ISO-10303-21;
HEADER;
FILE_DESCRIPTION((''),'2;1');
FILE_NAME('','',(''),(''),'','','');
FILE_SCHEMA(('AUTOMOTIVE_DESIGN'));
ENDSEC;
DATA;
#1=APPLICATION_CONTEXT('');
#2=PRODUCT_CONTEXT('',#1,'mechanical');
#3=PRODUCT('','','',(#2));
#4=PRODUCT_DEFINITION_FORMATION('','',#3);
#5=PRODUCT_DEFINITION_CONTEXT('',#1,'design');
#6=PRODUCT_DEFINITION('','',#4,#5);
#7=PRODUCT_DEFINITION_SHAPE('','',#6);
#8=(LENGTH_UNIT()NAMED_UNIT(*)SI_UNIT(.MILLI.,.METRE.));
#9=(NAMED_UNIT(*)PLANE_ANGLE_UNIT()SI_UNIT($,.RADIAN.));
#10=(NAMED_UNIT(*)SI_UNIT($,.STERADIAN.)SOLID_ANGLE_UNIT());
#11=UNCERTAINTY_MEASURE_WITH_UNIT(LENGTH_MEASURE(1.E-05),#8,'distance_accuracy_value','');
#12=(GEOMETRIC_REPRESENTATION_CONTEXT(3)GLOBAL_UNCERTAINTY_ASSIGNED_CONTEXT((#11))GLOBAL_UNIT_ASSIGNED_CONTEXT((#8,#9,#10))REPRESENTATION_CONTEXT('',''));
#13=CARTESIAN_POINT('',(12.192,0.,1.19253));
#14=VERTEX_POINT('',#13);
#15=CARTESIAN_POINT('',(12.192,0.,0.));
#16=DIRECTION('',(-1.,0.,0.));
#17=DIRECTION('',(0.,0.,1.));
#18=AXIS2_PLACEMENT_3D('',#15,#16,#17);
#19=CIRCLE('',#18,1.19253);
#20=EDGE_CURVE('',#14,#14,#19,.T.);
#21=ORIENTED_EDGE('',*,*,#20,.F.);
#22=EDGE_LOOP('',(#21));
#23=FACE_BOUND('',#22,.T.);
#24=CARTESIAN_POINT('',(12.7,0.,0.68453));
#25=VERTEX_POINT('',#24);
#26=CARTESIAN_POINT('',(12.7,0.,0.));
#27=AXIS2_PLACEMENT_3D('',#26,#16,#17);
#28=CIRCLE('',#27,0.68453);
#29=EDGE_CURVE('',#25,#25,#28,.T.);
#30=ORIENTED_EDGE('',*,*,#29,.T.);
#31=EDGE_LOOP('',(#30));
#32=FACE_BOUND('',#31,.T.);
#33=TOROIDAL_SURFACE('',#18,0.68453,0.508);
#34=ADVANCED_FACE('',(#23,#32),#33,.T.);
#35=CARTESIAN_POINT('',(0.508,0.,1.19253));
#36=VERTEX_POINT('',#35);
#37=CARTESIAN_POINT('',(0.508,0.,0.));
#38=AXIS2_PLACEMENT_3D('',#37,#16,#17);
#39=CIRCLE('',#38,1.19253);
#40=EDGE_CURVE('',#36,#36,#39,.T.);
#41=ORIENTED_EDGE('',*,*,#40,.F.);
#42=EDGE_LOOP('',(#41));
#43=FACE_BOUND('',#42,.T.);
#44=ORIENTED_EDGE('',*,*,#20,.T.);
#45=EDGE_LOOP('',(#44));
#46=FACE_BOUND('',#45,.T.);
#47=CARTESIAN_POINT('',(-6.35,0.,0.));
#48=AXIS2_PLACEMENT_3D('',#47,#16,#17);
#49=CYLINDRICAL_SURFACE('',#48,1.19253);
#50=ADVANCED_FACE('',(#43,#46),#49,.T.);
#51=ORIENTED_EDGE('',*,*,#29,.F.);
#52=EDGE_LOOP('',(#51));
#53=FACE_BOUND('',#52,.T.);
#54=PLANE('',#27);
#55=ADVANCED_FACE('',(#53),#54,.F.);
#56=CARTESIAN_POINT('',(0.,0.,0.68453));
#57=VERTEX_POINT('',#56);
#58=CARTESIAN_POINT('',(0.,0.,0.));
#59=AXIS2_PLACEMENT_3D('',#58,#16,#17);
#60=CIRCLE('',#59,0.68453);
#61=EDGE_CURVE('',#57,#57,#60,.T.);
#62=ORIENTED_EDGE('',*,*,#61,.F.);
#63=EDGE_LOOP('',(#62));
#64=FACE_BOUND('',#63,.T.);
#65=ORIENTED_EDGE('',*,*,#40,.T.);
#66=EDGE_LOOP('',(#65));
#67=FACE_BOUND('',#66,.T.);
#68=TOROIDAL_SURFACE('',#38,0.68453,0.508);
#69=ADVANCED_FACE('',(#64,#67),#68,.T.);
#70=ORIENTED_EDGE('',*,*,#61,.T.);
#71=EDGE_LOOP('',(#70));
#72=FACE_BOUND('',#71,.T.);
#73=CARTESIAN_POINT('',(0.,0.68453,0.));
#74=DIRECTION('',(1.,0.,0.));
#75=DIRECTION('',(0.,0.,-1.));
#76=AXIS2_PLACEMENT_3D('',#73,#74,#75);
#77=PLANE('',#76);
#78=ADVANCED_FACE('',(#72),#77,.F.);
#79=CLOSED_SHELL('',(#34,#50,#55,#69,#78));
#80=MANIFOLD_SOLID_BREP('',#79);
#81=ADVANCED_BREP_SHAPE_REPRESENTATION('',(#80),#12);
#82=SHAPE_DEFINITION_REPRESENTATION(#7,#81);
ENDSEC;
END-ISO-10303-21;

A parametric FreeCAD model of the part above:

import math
import FreeCAD as App
import Part
import Sketcher
from FreeCAD import Vector
Q = App.Units.Quantity

doc = App.newDocument("Part")
params = doc.addObject("Spreadsheet::Sheet", "Params")
for row, (alias, value) in enumerate([
    ("sketch1_radius", "0.02 in"),
    ("sketch1_width", "0.5 in"),
    ("revolution_angle", "360 deg"),
], start=1):
    params.set(f"A{row}", alias)
    params.set(f"B{row}", "=" + value)
    params.setAlias(f"B{row}", alias)

body = doc.addObject("PartDesign::Body", "Body")

# Sketch on XY plane
sketch1 = body.newObject("Sketcher::SketchObject", "Sketch")
sketch1.AttachmentSupport = (doc.getObject("XY_Plane"), [""])
sketch1.MapMode = "FlatFace"
sketch1.addGeometry([
    Part.LineSegment(Vector(0, 0, 0), Vector(12.7, 0, 0)),  # 0
    Part.LineSegment(Vector(12.7, 0, 0), Vector(12.7, 0.7, 0)),  # 1
    Part.ArcOfCircle(Part.Circle(Vector(12.2, 0.7, 0), Vector(0, 0, 1), 0.5), math.radians(0), math.radians(90)),  # 2
    Part.LineSegment(Vector(12.2, 1.2, 0), Vector(0.5, 1.2, 0)),  # 3
    Part.ArcOfCircle(Part.Circle(Vector(0.5, 0.7, 0), Vector(0, 0, 1), 0.5), math.radians(90), math.radians(180)),  # 4
    Part.LineSegment(Vector(0, 0.7, 0), Vector(0, 0, 0)),  # 5
], False)
sketch1.addConstraint([
    Sketcher.Constraint("Coincident", 0, 2, 1, 1),
    Sketcher.Constraint("Tangent", 1, 2, 2, 1),
    Sketcher.Constraint("Tangent", 2, 2, 3, 1),
    Sketcher.Constraint("Tangent", 3, 2, 4, 1),
    Sketcher.Constraint("Tangent", 4, 2, 5, 1),
    Sketcher.Constraint("Coincident", 5, 2, 0, 1),
    Sketcher.Constraint("Horizontal", 0),
    Sketcher.Constraint("Vertical", 1),
    Sketcher.Constraint("Horizontal", 3),
    Sketcher.Constraint("Vertical", 5),
    Sketcher.Constraint("Coincident", 5, 2, -1, 1),
    Sketcher.Constraint("Equal", 2, 4),
    Sketcher.Constraint("Radius", 2, Q("0.02 in")),
    Sketcher.Constraint("DistanceX", 0, 1, 0, 2, Q("0.5 in")),
    Sketcher.Constraint("DistanceY", 1, 1, 1, 2, 0.68453),
])
sketch1.setExpression("Constraints[12]", "Params.sketch1_radius")
sketch1.setExpression("Constraints[13]", "Params.sketch1_width")
revolution = body.newObject("PartDesign::Revolution", "Revolution")
revolution.Profile = sketch1
revolution.ReferenceAxis = (sketch1, ["H_Axis"])
revolution.setExpression("Angle", "Params.revolution_angle")

doc.recompute()
